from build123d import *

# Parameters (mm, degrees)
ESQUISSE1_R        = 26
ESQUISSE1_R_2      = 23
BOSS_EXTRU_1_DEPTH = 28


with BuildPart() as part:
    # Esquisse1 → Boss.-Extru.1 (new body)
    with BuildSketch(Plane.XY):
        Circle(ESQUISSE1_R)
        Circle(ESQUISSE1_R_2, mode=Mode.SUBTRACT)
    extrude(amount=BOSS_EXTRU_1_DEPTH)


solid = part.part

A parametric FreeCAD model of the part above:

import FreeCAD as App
import Part
import Sketcher
from FreeCAD import Vector

doc = App.newDocument("Part")
params = doc.addObject("Spreadsheet::Sheet", "Params")
for row, (alias, value) in enumerate([
    ("sketch1_diameter", "52 mm"),
    ("sketch1_diameter2", "46 mm"),
    ("pad1_length", "28 mm"),
], start=1):
    params.set(f"A{row}", alias)
    params.set(f"B{row}", "=" + value)
    params.setAlias(f"B{row}", alias)

body = doc.addObject("PartDesign::Body", "Body")

# Sketch on XY plane
sketch1 = body.newObject("Sketcher::SketchObject", "Sketch")
sketch1.AttachmentSupport = (doc.getObject("XY_Plane"), [""])
sketch1.MapMode = "FlatFace"
sketch1.addGeometry([
    Part.Circle(Vector(0, 0, 0), Vector(0, 0, 1), 26),
    Part.Circle(Vector(0, 0, 0), Vector(0, 0, 1), 23),
], False)
sketch1.addConstraint([
    Sketcher.Constraint("Coincident", 0, 3, -1, 1),
    Sketcher.Constraint("Coincident", 1, 3, -1, 1),
    Sketcher.Constraint("Diameter", 0, 52.0),
    Sketcher.Constraint("Diameter", 1, 46.0),
])
sketch1.setExpression("Constraints[2]", "Params.sketch1_diameter")
sketch1.setExpression("Constraints[3]", "Params.sketch1_diameter2")
pad1 = body.newObject("PartDesign::Pad", "Pad")
pad1.Profile = sketch1
pad1.setExpression("Length", "Params.pad1_length")

doc.recompute()
